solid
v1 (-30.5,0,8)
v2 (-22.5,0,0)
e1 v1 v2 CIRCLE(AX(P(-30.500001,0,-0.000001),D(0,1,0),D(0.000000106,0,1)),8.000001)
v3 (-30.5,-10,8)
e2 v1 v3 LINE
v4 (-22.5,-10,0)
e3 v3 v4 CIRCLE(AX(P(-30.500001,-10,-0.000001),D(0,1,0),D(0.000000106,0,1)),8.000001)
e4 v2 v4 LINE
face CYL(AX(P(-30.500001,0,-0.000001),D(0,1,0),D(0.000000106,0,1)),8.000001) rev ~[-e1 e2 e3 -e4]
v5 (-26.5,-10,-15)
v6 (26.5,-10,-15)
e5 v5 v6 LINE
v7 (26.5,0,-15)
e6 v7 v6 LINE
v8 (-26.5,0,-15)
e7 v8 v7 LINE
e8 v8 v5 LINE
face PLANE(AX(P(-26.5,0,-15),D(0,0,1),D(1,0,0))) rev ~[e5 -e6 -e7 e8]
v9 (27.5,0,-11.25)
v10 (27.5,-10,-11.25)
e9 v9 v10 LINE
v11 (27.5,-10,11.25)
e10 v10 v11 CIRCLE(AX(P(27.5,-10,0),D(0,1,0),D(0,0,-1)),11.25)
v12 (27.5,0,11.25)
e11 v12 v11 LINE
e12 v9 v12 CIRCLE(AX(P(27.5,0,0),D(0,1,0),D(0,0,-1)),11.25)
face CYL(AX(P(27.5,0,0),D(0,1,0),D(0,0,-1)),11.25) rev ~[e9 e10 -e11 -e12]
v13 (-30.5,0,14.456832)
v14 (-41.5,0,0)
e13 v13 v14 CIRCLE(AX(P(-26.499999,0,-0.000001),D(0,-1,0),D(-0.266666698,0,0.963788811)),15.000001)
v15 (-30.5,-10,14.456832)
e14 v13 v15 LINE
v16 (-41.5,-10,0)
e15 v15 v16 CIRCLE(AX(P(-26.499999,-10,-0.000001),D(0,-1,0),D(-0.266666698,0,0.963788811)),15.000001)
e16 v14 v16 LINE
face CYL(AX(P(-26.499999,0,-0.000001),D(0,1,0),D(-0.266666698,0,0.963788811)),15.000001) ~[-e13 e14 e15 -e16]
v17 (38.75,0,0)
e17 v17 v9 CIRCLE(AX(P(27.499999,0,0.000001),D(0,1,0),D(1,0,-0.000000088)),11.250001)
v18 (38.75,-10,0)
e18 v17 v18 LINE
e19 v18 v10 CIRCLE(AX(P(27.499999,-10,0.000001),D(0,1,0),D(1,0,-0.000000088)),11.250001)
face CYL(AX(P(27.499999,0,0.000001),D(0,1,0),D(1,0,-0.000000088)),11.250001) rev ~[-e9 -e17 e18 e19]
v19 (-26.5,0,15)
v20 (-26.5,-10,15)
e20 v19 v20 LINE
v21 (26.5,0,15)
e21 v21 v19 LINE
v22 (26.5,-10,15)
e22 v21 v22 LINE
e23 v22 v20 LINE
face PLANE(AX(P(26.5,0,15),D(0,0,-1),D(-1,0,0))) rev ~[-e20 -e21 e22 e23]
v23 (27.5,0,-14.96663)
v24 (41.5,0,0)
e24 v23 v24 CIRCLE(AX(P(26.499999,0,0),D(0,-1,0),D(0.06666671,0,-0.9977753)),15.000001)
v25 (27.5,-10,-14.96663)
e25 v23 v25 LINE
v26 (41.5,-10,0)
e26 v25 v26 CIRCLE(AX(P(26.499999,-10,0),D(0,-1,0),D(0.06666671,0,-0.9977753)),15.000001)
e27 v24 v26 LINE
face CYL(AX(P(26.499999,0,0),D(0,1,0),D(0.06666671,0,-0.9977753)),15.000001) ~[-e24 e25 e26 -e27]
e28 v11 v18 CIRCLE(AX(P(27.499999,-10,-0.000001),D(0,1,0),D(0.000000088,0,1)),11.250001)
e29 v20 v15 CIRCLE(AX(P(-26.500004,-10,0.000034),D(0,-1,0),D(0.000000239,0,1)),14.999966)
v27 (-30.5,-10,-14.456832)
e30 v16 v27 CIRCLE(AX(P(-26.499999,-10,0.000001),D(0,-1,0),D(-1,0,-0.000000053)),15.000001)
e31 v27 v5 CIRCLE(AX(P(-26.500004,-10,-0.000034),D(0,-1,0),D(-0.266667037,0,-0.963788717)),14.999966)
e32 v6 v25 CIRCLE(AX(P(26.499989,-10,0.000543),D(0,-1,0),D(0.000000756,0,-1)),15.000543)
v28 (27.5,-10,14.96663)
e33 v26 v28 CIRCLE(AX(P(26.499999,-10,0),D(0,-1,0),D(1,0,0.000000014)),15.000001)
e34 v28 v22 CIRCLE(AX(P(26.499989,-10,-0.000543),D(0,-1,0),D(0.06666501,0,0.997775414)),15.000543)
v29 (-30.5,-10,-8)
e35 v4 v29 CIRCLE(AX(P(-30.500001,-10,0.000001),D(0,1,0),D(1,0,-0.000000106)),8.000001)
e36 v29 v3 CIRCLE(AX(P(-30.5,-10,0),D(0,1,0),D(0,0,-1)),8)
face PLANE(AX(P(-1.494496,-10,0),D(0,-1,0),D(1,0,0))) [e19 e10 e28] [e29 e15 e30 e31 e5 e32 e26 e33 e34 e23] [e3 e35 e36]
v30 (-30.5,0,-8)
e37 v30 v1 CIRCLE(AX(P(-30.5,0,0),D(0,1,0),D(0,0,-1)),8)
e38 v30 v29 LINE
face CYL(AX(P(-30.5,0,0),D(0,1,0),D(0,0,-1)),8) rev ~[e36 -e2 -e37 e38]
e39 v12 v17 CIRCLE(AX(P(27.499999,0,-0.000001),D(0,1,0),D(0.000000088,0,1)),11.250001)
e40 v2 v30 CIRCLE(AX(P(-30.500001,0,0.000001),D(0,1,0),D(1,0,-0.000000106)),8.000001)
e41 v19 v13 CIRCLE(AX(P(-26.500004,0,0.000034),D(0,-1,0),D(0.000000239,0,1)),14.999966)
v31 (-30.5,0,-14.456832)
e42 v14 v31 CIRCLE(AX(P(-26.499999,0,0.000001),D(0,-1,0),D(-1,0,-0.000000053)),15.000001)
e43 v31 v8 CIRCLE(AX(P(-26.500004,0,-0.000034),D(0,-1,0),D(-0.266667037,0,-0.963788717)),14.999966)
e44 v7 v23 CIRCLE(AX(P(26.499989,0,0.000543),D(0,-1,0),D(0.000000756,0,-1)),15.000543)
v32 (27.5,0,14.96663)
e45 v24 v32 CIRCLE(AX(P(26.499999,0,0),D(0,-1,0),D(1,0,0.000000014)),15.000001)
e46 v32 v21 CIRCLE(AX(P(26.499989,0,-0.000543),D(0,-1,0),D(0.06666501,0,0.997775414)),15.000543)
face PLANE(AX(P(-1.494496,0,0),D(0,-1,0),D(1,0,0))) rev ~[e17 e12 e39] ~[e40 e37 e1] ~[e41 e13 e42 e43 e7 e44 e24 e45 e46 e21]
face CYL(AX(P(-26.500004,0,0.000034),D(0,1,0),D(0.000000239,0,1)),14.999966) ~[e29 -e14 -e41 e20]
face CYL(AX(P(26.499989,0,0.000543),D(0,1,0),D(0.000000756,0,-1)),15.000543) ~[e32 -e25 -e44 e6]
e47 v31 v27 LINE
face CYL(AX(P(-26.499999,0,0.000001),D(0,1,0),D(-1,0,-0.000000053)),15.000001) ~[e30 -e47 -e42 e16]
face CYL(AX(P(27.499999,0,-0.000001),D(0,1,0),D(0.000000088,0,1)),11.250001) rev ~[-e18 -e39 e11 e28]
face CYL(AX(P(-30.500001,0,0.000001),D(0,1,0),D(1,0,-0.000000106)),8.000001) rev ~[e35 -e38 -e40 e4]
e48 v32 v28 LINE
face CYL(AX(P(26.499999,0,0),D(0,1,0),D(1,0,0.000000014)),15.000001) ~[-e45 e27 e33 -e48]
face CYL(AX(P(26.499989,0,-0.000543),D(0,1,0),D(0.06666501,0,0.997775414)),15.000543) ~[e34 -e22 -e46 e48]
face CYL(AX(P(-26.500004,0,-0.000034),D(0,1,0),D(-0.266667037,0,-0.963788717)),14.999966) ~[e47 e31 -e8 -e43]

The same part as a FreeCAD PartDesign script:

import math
import FreeCAD as App
import Part
import Sketcher
from FreeCAD import Vector

doc = App.newDocument("Part")
body = doc.addObject("PartDesign::Body", "Body")

# Sketch on XZ plane
sketch1 = body.newObject("Sketcher::SketchObject", "Sketch")
sketch1.AttachmentSupport = (doc.getObject("XZ_Plane"), [""])
sketch1.MapMode = "FlatFace"
sketch1.addGeometry([
    Part.LineSegment(Vector(-26.5, -15, 0), Vector(26.5, -15, 0)),  # 0
    Part.ArcOfCircle(Part.Circle(Vector(26.499989, 0.000543, 0), Vector(0, 0, 1), 15.000543), math.radians(-89.999957), math.radians(-86.177541)),  # 1
    Part.ArcOfCircle(Part.Circle(Vector(26.499999, 0, 0), Vector(0, 0, 1), 15.000001), math.radians(-86.177444), math.radians(-0.000001)),  # 2
    Part.ArcOfCircle(Part.Circle(Vector(26.499999, 0, 0), Vector(0, 0, 1), 15.000001), math.radians(0.000001), math.radians(86.177444)),  # 3
    Part.ArcOfCircle(Part.Circle(Vector(26.499989, -0.000543, 0), Vector(0, 0, 1), 15.000543), math.radians(86.177541), math.radians(89.999957)),  # 4
    Part.LineSegment(Vector(26.5, 15, 0), Vector(-26.5, 15, 0)),  # 5
    Part.ArcOfCircle(Part.Circle(Vector(-26.500004, 0.000034, 0), Vector(0, 0, 1), 14.999966), math.radians(89.999986), math.radians(105.466032)),  # 6
    Part.ArcOfCircle(Part.Circle(Vector(-26.499999, -0.000001, 0), Vector(0, 0, 1), 15.000001), math.radians(105.466012), math.radians(179.999997)),  # 7
    Part.ArcOfCircle(Part.Circle(Vector(-26.499999, 0.000001, 0), Vector(0, 0, 1), 15.000001), math.radians(-179.999997), math.radians(-105.466012)),  # 8
    Part.ArcOfCircle(Part.Circle(Vector(-26.500004, -0.000034, 0), Vector(0, 0, 1), 14.999966), math.radians(-105.466032), math.radians(-89.999986)),  # 9
    Part.ArcOfCircle(Part.Circle(Vector(-30.500001, -0.000001, 0), Vector(0, 0, 1), 8.000001), math.radians(0.000006), math.radians(89.999994)),  # 10
    Part.ArcOfCircle(Part.Circle(Vector(-30.500001, 0.000001, 0), Vector(0, 0, 1), 8.000001), math.radians(-89.999994), math.radians(-0.000006)),  # 11
    Part.ArcOfCircle(Part.Circle(Vector(-30.5, 0, 0), Vector(0, 0, 1), 8), math.radians(90), math.radians(270)),  # 12
    Part.ArcOfCircle(Part.Circle(Vector(27.5, 0, 0), Vector(0, 0, 1), 11.25), math.radians(90), math.radians(270)),  # 13
    Part.ArcOfCircle(Part.Circle(Vector(27.499999, -0.000001, 0), Vector(0, 0, 1), 11.250001), math.radians(0.000005), math.radians(89.999995)),  # 14
    Part.ArcOfCircle(Part.Circle(Vector(27.499999, 0.000001, 0), Vector(0, 0, 1), 11.250001), math.radians(-89.999995), math.radians(-0.000005)),  # 15
], False)
sketch1.addConstraint([
    Sketcher.Constraint("Coincident", 0, 2, 1, 1),
    Sketcher.Constraint("Coincident", 1, 2, 2, 1),
    Sketcher.Constraint("Coincident", 2, 2, 3, 1),
    Sketcher.Constraint("Coincident", 3, 2, 4, 1),
    Sketcher.Constraint("Coincident", 4, 2, 5, 1),
    Sketcher.Constraint("Coincident", 5, 2, 6, 1),
    Sketcher.Constraint("Coincident", 6, 2, 7, 1),
    Sketcher.Constraint("Coincident", 7, 2, 8, 1),
    Sketcher.Constraint("Coincident", 8, 2, 9, 1),
    Sketcher.Constraint("Coincident", 9, 2, 0, 1),
    Sketcher.Constraint("Coincident", 10, 1, 11, 2),
    Sketcher.Constraint("Coincident", 11, 1, 12, 2),
    Sketcher.Constraint("Coincident", 12, 1, 10, 2),
    Sketcher.Constraint("Coincident", 13, 1, 14, 2),
    Sketcher.Constraint("Coincident", 14, 1, 15, 2),
    Sketcher.Constraint("Coincident", 15, 1, 13, 2),
    Sketcher.Constraint("Horizontal", 0),
    Sketcher.Constraint("Horizontal", 5),
    Sketcher.Constraint("Coincident", 3, 3, 2, 3),
    Sketcher.Constraint("Coincident", 8, 3, 7, 3),
    Sketcher.Constraint("Coincident", 11, 3, 10, 3),
    Sketcher.Constraint("Coincident", 14, 3, 13, 3),
    Sketcher.Constraint("PointOnObject", 2, 3, -1),
    Sketcher.Constraint("PointOnObject", 7, 3, -1),
    Sketcher.Constraint("PointOnObject", 10, 3, -1),
    Sketcher.Constraint("PointOnObject", 13, 3, -1),
    Sketcher.Constraint("PointOnObject", 15, 3, -1),
    Sketcher.Constraint("PointOnObject", 2, 2, -1),
    Sketcher.Constraint("PointOnObject", 7, 2, -1),
    Sketcher.Constraint("PointOnObject", 10, 1, -1),
    Sketcher.Constraint("PointOnObject", 14, 1, -1),
    Sketcher.Constraint("Radius", 2, 15.000001),
    Sketcher.Constraint("Radius", 7, 15.000001),
    Sketcher.Constraint("Radius", 10, 8.000001),
    Sketcher.Constraint("DistanceX", 0, 1, 0, 2, 53.0),
    Sketcher.Constraint("DistanceX", 5, 2, 5, 1, 53.0),
    Sketcher.Constraint("Radius", 13, 11.25),
    Sketcher.Constraint("DistanceY", 0, 2, -1, 1, 15.0),
    Sketcher.Constraint("DistanceY", -1, 1, 4, 2, 15.0),
    Sketcher.Constraint("DistanceX", 7, 3, 3, 3, 52.999999),
    Sketcher.Constraint("DistanceX", 10, 3, 7, 3, 4.000002),
    Sketcher.Constraint("DistanceX", 12, 3, 7, 3, 4.000001),
    Sketcher.Constraint("DistanceX", 2, 3, 13, 3, 1.000001),
    Sketcher.Constraint("DistanceX", 0, 2, 14, 3, 0.999999),
    Sketcher.Constraint("DistanceX", 0, 2, 1, 2, 1.0),
    Sketcher.Constraint("DistanceX", 2, 3, 3, 2, 1.000001),
    Sketcher.Constraint("DistanceX", 4, 2, 3, 2, 1.0),
    Sketcher.Constraint("DistanceX", 6, 2, 5, 2, 4.0),
    Sketcher.Constraint("DistanceX", 8, 2, 7, 3, 4.000001),
    Sketcher.Constraint("DistanceX", 11, 1, 9, 2, 4.0),
    Sketcher.Constraint("DistanceX", 12, 1, 5, 2, 4.0),
    Sketcher.Constraint("DistanceX", 4, 2, 13, 1, 1.0),
    Sketcher.Constraint("DistanceX", 0, 2, 15, 1, 1.0),
    Sketcher.Constraint("DistanceX", -1, 1, 2, 3, 26.499999),
    Sketcher.Constraint("Radius", 1, 15.000543),
    Sketcher.Constraint("Radius", 4, 15.000543),
    Sketcher.Constraint("Radius", 6, 14.999966),
    Sketcher.Constraint("Radius", 9, 14.999966),
])
pad1 = body.newObject("PartDesign::Pad", "Pad")
pad1.Profile = sketch1
pad1.Length = 10

doc.recompute()
